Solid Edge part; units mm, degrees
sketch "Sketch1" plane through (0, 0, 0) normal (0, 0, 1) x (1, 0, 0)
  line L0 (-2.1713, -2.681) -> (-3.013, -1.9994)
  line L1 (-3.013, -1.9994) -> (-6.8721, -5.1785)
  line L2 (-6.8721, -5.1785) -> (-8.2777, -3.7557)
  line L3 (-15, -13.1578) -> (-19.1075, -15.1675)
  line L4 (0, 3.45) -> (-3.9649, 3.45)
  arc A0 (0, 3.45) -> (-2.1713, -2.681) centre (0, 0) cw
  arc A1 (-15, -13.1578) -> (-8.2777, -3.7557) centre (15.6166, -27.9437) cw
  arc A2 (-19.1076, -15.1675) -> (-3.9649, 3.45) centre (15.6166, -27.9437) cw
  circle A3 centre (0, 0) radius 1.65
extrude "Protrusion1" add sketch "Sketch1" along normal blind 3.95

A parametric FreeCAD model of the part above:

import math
import FreeCAD as App
import Part
import Sketcher
Q = App.Units.Quantity

doc = App.newDocument("Part")
body = doc.addObject("PartDesign::Body", "Body")

sketch1 = body.newObject("Sketcher::SketchObject", "Sketch")
sketch1.AttachmentSupport = (doc.getObject("XY_Plane"), [""])
sketch1.MapMode = "FlatFace"
sketch1.addGeometry(Part.LineSegment(App.Vector(-3, -2, 0), App.Vector(-2.2, -2.7, 0)), False)
sketch1.addGeometry(Part.ArcOfCircle(Part.Circle(App.Vector(0, 0, 0), App.Vector(0, 0, 1), 3.5), math.radians(-129), math.radians(90)), False)
sketch1.addGeometry(Part.LineSegment(App.Vector(0, 3.5, 0), App.Vector(-4, 3.5, 0)), False)
sketch1.addGeometry(Part.ArcOfCircle(Part.Circle(App.Vector(15.6, -27.9, 0), App.Vector(0, 0, 1), 37), math.radians(122), math.radians(160)), False)
sketch1.addGeometry(Part.LineSegment(App.Vector(-19.1, -15.2, 0), App.Vector(-15, -13.2, 0)), False)
sketch1.addGeometry(Part.ArcOfCircle(Part.Circle(App.Vector(15.6, -27.9, 0), App.Vector(0, 0, 1), 34), math.radians(134.65), math.radians(154.22)), False)
sketch1.addGeometry(Part.LineSegment(App.Vector(-8.3, -3.8, 0), App.Vector(-6.9, -5.2, 0)), False)
sketch1.addGeometry(Part.LineSegment(App.Vector(-6.9, -5.2, 0), App.Vector(-3, -2, 0)), False)
sketch1.addGeometry(Part.Circle(App.Vector(0, 0, 0), App.Vector(0, 0, 1), 1.6), False)
sketch1.addConstraint(Sketcher.Constraint("Tangent", 0, 2, 1, 1))
sketch1.addConstraint(Sketcher.Constraint("Tangent", 1, 2, 2, 1))
sketch1.addConstraint(Sketcher.Constraint("Coincident", 2, 2, 3, 1))
sketch1.addConstraint(Sketcher.Constraint("Coincident", 3, 2, 4, 1))
sketch1.addConstraint(Sketcher.Constraint("Coincident", 4, 2, 5, 2))
sketch1.addConstraint(Sketcher.Constraint("Coincident", 5, 1, 6, 1))
sketch1.addConstraint(Sketcher.Constraint("Coincident", 6, 2, 7, 1))
sketch1.addConstraint(Sketcher.Constraint("Coincident", 7, 2, 0, 1))
sketch1.addConstraint(Sketcher.Constraint("Horizontal", 2))
sketch1.addConstraint(Sketcher.Constraint("Coincident", 1, 3, -1, 1))
sketch1.addConstraint(Sketcher.Constraint("Coincident", 8, 3, -1, 1))
sketch1.addConstraint(Sketcher.Constraint("Coincident", 5, 3, 3, 3))
sketch1.addConstraint(Sketcher.Constraint("Diameter", 8, Q("3.3 mm")))
sketch1.addConstraint(Sketcher.Constraint("Angle", 0, Q("-39.0002 deg")))
sketch1.addConstraint(Sketcher.Constraint("Radius", 1, Q("3.45 mm")))
sketch1.addConstraint(Sketcher.Constraint("Distance", 6, Q("2 mm")))
sketch1.addConstraint(Sketcher.Constraint("Distance", 7, Q("5 mm")))
sketch1.addConstraint(Sketcher.Constraint("DistanceX", 4, 2, -1, 1, Q("15 mm")))
sketch1.addConstraint(Sketcher.Constraint("Radius", 3, Q("36.999 mm")))
sketch1.addConstraint(Sketcher.Constraint("Radius", 5, Q("33.999 mm")))
sketch1.addConstraint(Sketcher.Constraint("DistanceX", 2, 2, 2, 1, Q("3.965 mm")))
sketch1.addConstraint(Sketcher.Constraint("Distance", 0, Q("1.083 mm")))
sketch1.addConstraint(Sketcher.Constraint("DistanceY", 3, 3, -1, 1, Q("27.943 mm")))
sketch1.addConstraint(Sketcher.Constraint("Distance", 4, Q("4.5728 mm")))
sketch1.addConstraint(Sketcher.Constraint("DistanceX", 5, 1, -1, 1, Q("8.2777 mm")))
pad1 = body.newObject("PartDesign::Pad", "Pad")
pad1.Profile = sketch1
pad1.Length = 3.95

doc.recompute()
